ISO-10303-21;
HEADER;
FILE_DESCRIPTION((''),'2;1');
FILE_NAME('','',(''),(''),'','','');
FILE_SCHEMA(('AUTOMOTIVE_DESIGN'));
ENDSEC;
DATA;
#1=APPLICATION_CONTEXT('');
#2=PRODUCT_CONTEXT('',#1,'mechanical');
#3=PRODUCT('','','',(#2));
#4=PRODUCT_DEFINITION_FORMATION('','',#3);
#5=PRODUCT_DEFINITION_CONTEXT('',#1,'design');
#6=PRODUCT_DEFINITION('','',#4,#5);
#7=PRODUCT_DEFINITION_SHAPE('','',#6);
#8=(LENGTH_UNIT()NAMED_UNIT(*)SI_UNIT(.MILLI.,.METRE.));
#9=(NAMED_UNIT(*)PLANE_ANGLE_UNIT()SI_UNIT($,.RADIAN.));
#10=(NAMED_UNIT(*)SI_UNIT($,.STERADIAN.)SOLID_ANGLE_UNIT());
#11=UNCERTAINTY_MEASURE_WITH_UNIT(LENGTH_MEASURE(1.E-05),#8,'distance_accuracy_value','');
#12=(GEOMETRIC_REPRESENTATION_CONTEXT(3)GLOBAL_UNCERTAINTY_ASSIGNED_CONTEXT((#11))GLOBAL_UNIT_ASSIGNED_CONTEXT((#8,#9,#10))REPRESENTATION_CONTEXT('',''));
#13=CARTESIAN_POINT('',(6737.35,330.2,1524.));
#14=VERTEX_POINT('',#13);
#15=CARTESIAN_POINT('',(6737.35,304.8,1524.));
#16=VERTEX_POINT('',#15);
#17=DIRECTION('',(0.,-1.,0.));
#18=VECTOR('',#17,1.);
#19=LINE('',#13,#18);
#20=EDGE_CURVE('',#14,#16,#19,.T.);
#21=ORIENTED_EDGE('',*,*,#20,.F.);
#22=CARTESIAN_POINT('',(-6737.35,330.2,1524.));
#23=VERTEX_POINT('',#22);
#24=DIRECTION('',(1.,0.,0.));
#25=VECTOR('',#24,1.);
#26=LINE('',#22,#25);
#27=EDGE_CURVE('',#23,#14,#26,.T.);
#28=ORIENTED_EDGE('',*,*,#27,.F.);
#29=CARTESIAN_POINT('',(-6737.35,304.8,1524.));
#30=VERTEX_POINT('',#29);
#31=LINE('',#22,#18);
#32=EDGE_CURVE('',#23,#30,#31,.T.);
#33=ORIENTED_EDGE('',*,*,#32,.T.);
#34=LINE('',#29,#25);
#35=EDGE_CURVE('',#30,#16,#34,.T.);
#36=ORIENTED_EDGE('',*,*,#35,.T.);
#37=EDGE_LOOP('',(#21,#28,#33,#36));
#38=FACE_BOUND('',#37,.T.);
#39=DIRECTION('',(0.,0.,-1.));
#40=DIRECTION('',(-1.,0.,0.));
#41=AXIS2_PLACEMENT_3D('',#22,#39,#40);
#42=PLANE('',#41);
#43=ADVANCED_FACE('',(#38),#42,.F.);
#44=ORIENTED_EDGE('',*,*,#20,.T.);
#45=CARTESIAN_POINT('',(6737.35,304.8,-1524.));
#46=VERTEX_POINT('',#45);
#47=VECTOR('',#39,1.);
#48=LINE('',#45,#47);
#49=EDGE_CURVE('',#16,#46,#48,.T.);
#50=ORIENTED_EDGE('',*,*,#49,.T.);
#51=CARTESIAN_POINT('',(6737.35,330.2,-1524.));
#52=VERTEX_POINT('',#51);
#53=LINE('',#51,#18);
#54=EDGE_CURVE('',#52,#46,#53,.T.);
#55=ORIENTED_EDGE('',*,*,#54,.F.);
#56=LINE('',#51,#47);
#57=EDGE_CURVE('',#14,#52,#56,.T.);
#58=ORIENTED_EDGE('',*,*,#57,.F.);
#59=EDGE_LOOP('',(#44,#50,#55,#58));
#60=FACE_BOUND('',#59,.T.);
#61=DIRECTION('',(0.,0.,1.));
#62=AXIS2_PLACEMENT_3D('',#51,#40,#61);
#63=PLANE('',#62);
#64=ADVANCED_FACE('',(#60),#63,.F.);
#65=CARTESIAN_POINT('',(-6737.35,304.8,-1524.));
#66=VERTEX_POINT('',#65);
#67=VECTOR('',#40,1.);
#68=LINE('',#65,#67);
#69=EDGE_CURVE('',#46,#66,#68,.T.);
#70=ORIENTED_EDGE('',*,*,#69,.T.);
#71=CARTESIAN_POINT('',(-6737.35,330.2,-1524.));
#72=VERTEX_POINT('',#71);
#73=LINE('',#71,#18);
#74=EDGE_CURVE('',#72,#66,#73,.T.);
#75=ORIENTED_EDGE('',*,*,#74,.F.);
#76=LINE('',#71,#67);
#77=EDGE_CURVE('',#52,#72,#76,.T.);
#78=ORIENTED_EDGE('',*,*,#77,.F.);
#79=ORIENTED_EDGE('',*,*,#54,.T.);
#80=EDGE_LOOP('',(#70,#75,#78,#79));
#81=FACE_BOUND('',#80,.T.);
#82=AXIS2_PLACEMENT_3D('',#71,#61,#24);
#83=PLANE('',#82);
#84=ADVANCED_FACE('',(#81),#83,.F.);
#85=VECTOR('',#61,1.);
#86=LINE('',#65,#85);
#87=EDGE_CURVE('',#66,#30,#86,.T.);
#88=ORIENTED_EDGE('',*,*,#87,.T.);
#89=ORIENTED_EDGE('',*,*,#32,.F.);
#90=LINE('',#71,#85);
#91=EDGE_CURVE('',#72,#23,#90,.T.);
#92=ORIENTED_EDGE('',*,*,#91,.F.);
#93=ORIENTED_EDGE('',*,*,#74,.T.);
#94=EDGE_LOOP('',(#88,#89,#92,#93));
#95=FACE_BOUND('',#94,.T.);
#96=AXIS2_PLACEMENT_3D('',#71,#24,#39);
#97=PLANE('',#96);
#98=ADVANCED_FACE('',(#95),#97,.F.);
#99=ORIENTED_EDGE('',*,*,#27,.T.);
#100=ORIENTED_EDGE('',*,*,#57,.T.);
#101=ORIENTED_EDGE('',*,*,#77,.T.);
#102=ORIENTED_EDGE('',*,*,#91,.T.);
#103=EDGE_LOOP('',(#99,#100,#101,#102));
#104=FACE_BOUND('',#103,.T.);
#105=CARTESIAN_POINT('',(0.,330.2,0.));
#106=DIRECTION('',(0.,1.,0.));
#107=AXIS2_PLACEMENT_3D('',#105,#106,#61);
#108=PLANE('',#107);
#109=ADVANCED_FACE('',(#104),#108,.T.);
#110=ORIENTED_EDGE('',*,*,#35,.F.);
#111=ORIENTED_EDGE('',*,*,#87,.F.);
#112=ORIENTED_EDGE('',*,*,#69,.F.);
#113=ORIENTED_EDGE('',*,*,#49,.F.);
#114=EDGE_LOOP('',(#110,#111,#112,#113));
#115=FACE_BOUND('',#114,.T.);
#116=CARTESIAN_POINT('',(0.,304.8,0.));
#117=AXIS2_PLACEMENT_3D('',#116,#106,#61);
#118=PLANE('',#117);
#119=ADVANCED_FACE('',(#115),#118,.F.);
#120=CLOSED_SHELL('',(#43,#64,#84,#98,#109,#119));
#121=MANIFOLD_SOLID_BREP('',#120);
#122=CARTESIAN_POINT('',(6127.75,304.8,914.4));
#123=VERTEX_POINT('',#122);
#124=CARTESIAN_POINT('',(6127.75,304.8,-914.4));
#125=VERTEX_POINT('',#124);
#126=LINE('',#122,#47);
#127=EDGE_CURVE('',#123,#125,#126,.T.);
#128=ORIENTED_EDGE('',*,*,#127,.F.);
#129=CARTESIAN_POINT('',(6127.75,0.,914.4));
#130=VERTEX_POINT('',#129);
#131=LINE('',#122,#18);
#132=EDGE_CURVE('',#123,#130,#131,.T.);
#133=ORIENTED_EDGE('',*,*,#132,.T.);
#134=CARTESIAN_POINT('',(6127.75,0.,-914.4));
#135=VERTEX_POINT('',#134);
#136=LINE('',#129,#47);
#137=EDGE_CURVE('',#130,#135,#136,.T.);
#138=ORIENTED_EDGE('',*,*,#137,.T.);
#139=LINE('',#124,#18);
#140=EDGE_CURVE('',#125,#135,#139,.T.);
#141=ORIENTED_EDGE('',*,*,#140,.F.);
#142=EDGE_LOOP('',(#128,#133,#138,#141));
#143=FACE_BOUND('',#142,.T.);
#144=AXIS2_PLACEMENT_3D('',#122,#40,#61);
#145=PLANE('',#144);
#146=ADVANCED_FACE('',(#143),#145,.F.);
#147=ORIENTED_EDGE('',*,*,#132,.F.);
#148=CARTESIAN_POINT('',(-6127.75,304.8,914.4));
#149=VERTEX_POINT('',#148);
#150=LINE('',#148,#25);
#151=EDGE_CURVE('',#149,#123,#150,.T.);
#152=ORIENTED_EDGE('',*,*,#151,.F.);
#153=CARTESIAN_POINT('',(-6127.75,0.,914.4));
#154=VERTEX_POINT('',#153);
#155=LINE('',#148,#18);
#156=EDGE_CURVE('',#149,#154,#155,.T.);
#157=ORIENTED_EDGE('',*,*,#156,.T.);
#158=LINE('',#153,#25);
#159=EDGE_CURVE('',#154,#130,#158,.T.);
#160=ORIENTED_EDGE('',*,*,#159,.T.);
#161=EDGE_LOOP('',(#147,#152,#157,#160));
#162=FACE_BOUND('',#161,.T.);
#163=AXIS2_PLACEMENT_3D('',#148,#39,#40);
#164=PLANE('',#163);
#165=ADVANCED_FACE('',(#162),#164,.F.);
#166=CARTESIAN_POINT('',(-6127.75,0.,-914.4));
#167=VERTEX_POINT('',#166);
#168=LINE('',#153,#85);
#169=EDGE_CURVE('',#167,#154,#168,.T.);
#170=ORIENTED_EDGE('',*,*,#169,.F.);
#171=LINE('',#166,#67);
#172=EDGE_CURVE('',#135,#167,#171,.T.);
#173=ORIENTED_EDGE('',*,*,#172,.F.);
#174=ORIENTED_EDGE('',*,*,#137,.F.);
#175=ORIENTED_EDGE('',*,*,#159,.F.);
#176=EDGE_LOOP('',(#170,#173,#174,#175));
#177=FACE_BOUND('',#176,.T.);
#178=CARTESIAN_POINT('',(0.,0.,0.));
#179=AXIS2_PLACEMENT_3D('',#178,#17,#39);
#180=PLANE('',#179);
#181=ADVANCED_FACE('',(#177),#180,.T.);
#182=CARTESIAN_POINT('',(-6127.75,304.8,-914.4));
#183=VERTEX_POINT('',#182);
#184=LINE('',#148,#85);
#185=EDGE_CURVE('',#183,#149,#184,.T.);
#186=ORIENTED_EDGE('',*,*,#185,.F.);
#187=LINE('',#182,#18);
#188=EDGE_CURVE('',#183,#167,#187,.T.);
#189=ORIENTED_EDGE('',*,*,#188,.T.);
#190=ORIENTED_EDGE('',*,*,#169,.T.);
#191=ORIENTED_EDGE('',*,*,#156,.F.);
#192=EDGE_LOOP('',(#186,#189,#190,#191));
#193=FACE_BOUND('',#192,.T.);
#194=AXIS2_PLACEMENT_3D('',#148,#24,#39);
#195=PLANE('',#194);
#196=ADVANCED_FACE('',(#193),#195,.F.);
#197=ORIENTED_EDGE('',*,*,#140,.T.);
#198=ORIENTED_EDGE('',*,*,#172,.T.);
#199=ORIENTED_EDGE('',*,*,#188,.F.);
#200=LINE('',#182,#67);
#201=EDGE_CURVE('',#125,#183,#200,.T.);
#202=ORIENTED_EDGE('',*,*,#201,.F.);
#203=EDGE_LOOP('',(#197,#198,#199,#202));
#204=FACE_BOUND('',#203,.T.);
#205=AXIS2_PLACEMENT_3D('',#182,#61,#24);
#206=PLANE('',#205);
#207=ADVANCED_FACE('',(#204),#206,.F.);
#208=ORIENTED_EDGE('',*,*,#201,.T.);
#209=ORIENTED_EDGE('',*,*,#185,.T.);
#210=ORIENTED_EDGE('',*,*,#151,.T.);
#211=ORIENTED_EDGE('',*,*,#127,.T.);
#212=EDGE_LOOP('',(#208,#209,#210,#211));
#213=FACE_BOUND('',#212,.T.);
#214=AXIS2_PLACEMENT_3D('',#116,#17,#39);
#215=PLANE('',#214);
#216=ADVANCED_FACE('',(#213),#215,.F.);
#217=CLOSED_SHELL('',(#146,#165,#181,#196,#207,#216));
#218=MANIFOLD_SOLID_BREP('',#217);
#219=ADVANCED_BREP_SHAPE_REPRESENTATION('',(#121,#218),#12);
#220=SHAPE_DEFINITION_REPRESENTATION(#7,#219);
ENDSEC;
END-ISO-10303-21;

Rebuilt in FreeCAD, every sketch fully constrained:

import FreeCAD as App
import Part
import Sketcher
from FreeCAD import Vector
Q = App.Units.Quantity


def add_polygon(sketch, points):
    """Adds a closed chain of lines whose ends are joined by coincident constraints."""
    first, n = sketch.GeometryCount, len(points)
    for a, b in zip(points, points[1:] + points[:1]):
        sketch.addGeometry(Part.LineSegment(App.Vector(*a, 0), App.Vector(*b, 0)), False)
    for i in range(n):
        sketch.addConstraint(Sketcher.Constraint("Coincident", first + i, 2, first + (i + 1) % n, 1))

doc = App.newDocument("Part")
params = doc.addObject("Spreadsheet::Sheet", "Params")
for row, (alias, value) in enumerate([
    ("sketch1_height", "72 in"),
    ("sketch1_width", "482.5 in"),
    ("pad1_length", "12 in"),
    ("sketch2_height", "120 in"),
    ("sketch2_width", "530.5 in"),
    ("pad2_length", "1 in"),
], start=1):
    params.set(f"A{row}", alias)
    params.set(f"B{row}", "=" + value)
    params.setAlias(f"B{row}", alias)

body = doc.addObject("PartDesign::Body", "Body")

# Sketch on XZ plane
sketch1 = body.newObject("Sketcher::SketchObject", "Sketch")
sketch1.AttachmentSupport = (doc.getObject("XZ_Plane"), [""])
sketch1.MapMode = "FlatFace"
add_polygon(sketch1, [(6127.75, 914.4), (6127.75, -914.4), (-6127.75, -914.4), (-6127.75, 914.4)])  # lines 0-3
sketch1.addConstraint([
    Sketcher.Constraint("Vertical", 0),
    Sketcher.Constraint("Horizontal", 1),
    Sketcher.Constraint("Vertical", 2),
    Sketcher.Constraint("Horizontal", 3),
    Sketcher.Constraint("Symmetric", 0, 2, 2, 2, -1, 1),
    Sketcher.Constraint("DistanceY", 0, 2, 0, 1, Q("72 in")),
    Sketcher.Constraint("DistanceX", 1, 2, 1, 1, Q("482.5 in")),
])
sketch1.setExpression("Constraints[9]", "Params.sketch1_height")
sketch1.setExpression("Constraints[10]", "Params.sketch1_width")
pad1 = body.newObject("PartDesign::Pad", "Pad")
pad1.Profile = sketch1
pad1.setExpression("Length", "Params.pad1_length")
pad1.Reversed = True
body2 = doc.addObject("PartDesign::Body", "Body001")

# Sketch on XZ plane
sketch2 = body2.newObject("Sketcher::SketchObject", "Sketch001")
sketch2.AttachmentSupport = (doc.getObject("XZ_Plane001"), [""])
sketch2.MapMode = "FlatFace"
sketch2.AttachmentOffset = App.Placement(Vector(0, 0, -12 * 25.4), App.Rotation())
add_polygon(sketch2, [(-6737.35, -1524), (-6737.35, 1524), (6737.35, 1524), (6737.35, -1524)])  # lines 0-3
sketch2.addConstraint([
    Sketcher.Constraint("Vertical", 0),
    Sketcher.Constraint("Horizontal", 1),
    Sketcher.Constraint("Vertical", 2),
    Sketcher.Constraint("Horizontal", 3),
    Sketcher.Constraint("Symmetric", 0, 2, 2, 2, -1, 1),
    Sketcher.Constraint("DistanceY", 0, 1, 0, 2, Q("120 in")),
    Sketcher.Constraint("DistanceX", 1, 1, 1, 2, Q("530.5 in")),
])
sketch2.setExpression("Constraints[9]", "Params.sketch2_height")
sketch2.setExpression("Constraints[10]", "Params.sketch2_width")
pad2 = body2.newObject("PartDesign::Pad", "Pad001")
pad2.Profile = sketch2
pad2.setExpression("Length", "Params.pad2_length")
pad2.Reversed = True

doc.recompute()
